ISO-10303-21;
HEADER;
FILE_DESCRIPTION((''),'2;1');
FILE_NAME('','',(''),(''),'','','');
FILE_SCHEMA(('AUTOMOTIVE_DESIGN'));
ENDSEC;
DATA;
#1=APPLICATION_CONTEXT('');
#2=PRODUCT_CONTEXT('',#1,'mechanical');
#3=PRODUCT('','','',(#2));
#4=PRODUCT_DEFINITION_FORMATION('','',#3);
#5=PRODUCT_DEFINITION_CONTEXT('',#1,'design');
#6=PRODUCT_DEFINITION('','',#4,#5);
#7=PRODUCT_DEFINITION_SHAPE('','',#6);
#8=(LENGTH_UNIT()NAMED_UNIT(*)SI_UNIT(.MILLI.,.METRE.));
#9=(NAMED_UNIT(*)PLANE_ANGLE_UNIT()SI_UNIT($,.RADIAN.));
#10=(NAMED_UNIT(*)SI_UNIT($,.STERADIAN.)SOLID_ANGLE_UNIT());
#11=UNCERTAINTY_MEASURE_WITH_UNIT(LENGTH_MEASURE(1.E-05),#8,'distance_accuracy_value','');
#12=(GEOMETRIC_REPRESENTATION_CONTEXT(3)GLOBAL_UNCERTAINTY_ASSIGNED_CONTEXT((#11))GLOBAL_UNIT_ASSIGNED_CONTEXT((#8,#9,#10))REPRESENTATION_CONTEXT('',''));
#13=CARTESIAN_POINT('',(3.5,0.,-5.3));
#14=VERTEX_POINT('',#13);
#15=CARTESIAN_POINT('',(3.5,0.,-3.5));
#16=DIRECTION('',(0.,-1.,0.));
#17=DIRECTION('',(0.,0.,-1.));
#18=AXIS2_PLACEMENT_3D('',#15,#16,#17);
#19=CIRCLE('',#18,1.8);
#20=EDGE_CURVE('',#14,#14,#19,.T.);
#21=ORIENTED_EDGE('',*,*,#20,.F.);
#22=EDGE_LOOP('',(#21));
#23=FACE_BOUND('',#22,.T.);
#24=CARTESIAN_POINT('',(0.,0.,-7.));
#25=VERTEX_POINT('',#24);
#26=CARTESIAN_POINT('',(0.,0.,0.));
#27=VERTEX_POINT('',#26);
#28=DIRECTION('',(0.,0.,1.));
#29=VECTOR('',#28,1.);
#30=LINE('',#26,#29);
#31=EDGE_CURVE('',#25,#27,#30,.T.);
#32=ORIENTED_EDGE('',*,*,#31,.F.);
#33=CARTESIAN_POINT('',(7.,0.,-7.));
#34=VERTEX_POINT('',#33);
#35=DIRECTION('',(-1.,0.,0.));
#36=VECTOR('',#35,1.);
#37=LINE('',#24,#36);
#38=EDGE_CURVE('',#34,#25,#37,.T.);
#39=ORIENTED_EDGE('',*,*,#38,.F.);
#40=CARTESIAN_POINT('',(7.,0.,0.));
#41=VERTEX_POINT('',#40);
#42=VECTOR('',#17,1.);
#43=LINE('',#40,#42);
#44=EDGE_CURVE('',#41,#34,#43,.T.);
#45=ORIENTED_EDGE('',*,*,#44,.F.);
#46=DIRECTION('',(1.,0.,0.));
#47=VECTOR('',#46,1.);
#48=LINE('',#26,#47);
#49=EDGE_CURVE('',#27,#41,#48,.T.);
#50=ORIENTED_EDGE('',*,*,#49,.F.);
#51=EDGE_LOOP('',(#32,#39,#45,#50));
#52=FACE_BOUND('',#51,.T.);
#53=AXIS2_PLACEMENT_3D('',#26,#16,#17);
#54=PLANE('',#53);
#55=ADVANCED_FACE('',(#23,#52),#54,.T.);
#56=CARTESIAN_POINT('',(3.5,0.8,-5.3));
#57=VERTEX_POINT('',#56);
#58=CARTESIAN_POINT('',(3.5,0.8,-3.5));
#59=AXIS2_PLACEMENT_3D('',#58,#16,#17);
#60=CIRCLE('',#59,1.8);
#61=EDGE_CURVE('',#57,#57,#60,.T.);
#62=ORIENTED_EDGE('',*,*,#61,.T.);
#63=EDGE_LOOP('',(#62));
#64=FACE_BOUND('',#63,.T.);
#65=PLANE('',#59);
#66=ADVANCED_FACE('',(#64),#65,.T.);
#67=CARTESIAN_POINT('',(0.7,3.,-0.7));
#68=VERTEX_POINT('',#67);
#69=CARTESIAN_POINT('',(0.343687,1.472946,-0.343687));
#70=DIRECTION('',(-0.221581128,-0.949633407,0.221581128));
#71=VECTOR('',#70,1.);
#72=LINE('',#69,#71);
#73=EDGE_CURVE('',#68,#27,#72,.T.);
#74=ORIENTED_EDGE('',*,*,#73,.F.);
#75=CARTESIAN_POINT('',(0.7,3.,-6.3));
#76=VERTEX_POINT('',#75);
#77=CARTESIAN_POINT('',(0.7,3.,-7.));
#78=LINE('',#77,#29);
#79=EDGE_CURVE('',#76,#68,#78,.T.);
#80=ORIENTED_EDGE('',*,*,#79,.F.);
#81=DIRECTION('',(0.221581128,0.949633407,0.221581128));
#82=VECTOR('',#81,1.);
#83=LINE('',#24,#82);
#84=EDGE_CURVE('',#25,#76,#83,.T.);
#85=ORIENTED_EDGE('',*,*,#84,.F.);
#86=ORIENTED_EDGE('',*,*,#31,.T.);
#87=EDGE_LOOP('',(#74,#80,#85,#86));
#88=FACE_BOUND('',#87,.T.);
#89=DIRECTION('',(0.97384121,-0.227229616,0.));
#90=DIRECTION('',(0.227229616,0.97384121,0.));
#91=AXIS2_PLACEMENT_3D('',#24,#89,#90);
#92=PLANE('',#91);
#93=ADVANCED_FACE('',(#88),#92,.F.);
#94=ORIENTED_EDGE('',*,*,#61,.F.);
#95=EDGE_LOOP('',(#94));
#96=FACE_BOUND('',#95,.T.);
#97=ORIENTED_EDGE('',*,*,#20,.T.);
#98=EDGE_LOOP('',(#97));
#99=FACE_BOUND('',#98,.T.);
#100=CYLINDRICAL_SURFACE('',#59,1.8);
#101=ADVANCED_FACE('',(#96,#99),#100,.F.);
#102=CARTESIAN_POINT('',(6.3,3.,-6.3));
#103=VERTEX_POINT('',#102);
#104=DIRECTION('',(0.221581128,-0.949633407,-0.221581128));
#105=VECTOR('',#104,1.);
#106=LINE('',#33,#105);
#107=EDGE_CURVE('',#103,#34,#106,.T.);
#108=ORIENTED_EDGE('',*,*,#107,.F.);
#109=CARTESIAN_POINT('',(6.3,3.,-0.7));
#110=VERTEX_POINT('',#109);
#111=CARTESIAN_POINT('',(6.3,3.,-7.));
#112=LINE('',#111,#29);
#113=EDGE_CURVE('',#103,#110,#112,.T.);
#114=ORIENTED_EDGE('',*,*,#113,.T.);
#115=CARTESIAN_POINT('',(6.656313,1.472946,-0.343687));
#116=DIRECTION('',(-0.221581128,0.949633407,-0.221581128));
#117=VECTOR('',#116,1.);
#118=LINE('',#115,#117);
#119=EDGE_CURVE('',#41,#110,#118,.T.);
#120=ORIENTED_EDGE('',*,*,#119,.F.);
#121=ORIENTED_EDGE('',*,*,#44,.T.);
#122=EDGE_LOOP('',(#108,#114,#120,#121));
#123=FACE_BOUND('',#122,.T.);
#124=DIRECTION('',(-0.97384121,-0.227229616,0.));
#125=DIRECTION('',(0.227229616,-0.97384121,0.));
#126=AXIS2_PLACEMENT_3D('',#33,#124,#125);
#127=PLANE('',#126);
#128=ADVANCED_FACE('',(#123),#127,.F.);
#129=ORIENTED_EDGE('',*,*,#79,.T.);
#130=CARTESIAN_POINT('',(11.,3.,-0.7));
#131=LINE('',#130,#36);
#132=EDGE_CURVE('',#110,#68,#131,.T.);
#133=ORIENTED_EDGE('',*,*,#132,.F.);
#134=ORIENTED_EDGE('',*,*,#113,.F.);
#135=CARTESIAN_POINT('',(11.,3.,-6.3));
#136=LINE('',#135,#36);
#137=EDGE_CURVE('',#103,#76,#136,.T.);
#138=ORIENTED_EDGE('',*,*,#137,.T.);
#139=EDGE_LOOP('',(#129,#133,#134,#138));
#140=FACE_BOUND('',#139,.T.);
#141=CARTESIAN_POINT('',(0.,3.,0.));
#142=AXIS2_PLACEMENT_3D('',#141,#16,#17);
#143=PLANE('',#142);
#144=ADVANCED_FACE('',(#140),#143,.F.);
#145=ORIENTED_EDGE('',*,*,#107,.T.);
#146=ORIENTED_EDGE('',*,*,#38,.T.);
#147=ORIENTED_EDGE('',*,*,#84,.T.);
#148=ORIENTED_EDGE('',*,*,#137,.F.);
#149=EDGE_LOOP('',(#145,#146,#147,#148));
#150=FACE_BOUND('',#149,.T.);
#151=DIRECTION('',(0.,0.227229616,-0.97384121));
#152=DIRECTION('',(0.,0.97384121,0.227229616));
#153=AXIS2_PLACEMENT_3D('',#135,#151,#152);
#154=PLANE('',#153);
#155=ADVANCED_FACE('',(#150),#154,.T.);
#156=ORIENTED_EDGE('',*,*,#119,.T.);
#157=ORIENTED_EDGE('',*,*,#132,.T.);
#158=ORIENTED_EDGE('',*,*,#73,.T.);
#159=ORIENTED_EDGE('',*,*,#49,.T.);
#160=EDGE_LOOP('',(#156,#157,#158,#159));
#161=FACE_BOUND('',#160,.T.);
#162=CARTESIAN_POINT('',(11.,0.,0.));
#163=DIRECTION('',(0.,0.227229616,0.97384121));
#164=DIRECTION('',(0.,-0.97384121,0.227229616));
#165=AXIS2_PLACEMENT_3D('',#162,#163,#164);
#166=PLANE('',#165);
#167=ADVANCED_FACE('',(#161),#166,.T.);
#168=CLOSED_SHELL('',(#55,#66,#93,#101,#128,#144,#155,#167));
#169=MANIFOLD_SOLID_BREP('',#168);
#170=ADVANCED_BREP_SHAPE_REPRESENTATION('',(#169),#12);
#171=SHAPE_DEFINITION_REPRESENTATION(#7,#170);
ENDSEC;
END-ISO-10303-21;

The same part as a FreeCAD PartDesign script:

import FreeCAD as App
import Part
import Sketcher
from FreeCAD import Vector
Q = App.Units.Quantity


def add_polygon(sketch, points):
    """Adds a closed chain of lines whose ends are joined by coincident constraints."""
    first, n = sketch.GeometryCount, len(points)
    for a, b in zip(points, points[1:] + points[:1]):
        sketch.addGeometry(Part.LineSegment(App.Vector(*a, 0), App.Vector(*b, 0)), False)
    for i in range(n):
        sketch.addConstraint(Sketcher.Constraint("Coincident", first + i, 2, first + (i + 1) % n, 1))

doc = App.newDocument("Part")
body = doc.addObject("PartDesign::Body", "Body")

# Sketch on XZ plane
sketch1 = body.newObject("Sketcher::SketchObject", "Sketch")
sketch1.AttachmentSupport = (doc.getObject("XZ_Plane"), [""])
sketch1.MapMode = "FlatFace"
add_polygon(sketch1, [(0, -7), (0, 0), (7, 0), (7, -7)])  # lines 0-3
sketch1.addConstraint([
    Sketcher.Constraint("Vertical", 0),
    Sketcher.Constraint("Horizontal", 1),
    Sketcher.Constraint("Vertical", 2),
    Sketcher.Constraint("Horizontal", 3),
    Sketcher.Constraint("Coincident", 0, 2, -1, 1),
    Sketcher.Constraint("Equal", 3, 0),
    Sketcher.Constraint("DistanceX", 1, 1, 1, 2, Q("7 mm")),
])
pad1 = body.newObject("PartDesign::Pad", "Pad")
pad1.Profile = sketch1
pad1.Length = 3
pad1.Reversed = True

# Sketch on XY plane
sketch2 = body.newObject("Sketcher::SketchObject", "Sketch001")
sketch2.AttachmentSupport = (doc.getObject("XY_Plane"), [""])
sketch2.MapMode = "FlatFace"
add_polygon(sketch2, [(0, 0), (0.7, 3), (0, 3)])  # lines 0-2
add_polygon(sketch2, [(6.3, 3), (7, 0), (7, 3)])  # lines 3-5
sketch2.addConstraint([
    Sketcher.Constraint("Horizontal", 1),
    Sketcher.Constraint("Vertical", 2),
    Sketcher.Constraint("Vertical", 4),
    Sketcher.Constraint("Horizontal", 5),
    Sketcher.Constraint("Coincident", 2, 2, -1, 1),
    Sketcher.Constraint("PointOnObject", 3, 2, -1),
    Sketcher.Constraint("Horizontal", 1, 2, 4, 2),
    Sketcher.Constraint("Equal", 1, 5),
    Sketcher.Constraint("DistanceY", 2, 2, 2, 1, Q("3 mm")),
    Sketcher.Constraint("DistanceX", 1, 2, 1, 1, Q("0.7 mm")),
    Sketcher.Constraint("DistanceX", -1, 1, 3, 2, Q("7 mm")),
])
pocket1 = body.newObject("PartDesign::Pocket", "Pocket")
pocket1.Profile = sketch2
pocket1.Length = 7

# Sketch on YZ plane
sketch3 = body.newObject("Sketcher::SketchObject", "Sketch002")
sketch3.AttachmentSupport = (doc.getObject("YZ_Plane"), [""])
sketch3.MapMode = "FlatFace"
add_polygon(sketch3, [(0, 0), (3, -0.7), (3, 0)])  # lines 0-2
add_polygon(sketch3, [(3, -7), (3, -6.3), (0, -7)])  # lines 3-5
sketch3.addConstraint([
    Sketcher.Constraint("Vertical", 1),
    Sketcher.Constraint("Horizontal", 2),
    Sketcher.Constraint("Vertical", 3),
    Sketcher.Constraint("Horizontal", 5),
    Sketcher.Constraint("Coincident", 2, 2, -1, 1),
    Sketcher.Constraint("PointOnObject", 4, 2, -2),
    Sketcher.Constraint("Vertical", 1, 2, 3, 2),
    Sketcher.Constraint("Equal", 1, 3),
    Sketcher.Constraint("DistanceX", 2, 2, 2, 1, Q("3 mm")),
    Sketcher.Constraint("DistanceY", 1, 1, 1, 2, Q("0.7 mm")),
    Sketcher.Constraint("DistanceY", 4, 2, -1, 1, Q("7 mm")),
])
pocket2 = body.newObject("PartDesign::Pocket", "Pocket001")
pocket2.Profile = sketch3
pocket2.Length = 11
pocket2.Reversed = True

# Sketch on XZ plane
sketch4 = body.newObject("Sketcher::SketchObject", "Sketch003")
sketch4.AttachmentSupport = (doc.getObject("XZ_Plane"), [""])
sketch4.MapMode = "FlatFace"
sketch4.addGeometry(Part.Circle(Vector(3.5, -3.5, 0), Vector(0, 0, 1), 1.8), False)
sketch4.addConstraint([
    Sketcher.Constraint("Diameter", 0, Q("3.6 mm")),
    Sketcher.Constraint("DistanceX", -1, 1, 0, 3, Q("3.5 mm")),
    Sketcher.Constraint("DistanceY", 0, 3, -1, 1, Q("3.5 mm")),
])
pocket3 = body.newObject("PartDesign::Pocket", "Pocket002")
pocket3.Profile = sketch4
pocket3.Length = 0.8

doc.recompute()
